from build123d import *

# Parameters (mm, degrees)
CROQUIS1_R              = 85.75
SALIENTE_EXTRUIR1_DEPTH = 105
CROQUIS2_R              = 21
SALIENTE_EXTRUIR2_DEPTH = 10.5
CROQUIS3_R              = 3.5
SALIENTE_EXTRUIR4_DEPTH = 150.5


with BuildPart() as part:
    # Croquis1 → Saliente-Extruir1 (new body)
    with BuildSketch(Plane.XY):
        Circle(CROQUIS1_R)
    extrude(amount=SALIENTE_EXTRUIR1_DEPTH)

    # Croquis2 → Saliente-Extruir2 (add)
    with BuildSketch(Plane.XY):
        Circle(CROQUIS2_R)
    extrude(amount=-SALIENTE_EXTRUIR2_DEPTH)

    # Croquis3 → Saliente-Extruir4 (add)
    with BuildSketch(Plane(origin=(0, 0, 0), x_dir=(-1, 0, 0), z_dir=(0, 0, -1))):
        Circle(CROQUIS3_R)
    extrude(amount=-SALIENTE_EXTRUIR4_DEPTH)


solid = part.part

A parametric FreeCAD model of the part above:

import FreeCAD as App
import Part
import Sketcher
from FreeCAD import Vector
Q = App.Units.Quantity

doc = App.newDocument("Part")
params = doc.addObject("Spreadsheet::Sheet", "Params")
for row, (alias, value) in enumerate([
    ("sketch1_diameter", "171.5 mm"),
    ("pad1_length", "105 mm"),
    ("sketch2_diameter", "42 mm"),
    ("pad2_length", "10.5 mm"),
    ("sketch3_diameter", "7 mm"),
    ("pad3_length", "150.5 mm"),
], start=1):
    params.set(f"A{row}", alias)
    params.set(f"B{row}", "=" + value)
    params.setAlias(f"B{row}", alias)

body = doc.addObject("PartDesign::Body", "Body")

# Sketch on XY plane
sketch1 = body.newObject("Sketcher::SketchObject", "Sketch")
sketch1.AttachmentSupport = (doc.getObject("XY_Plane"), [""])
sketch1.MapMode = "FlatFace"
sketch1.addGeometry(Part.Circle(Vector(0, 0, 0), Vector(0, 0, 1), 86), False)
sketch1.addConstraint([
    Sketcher.Constraint("Coincident", 0, 3, -1, 1),
    Sketcher.Constraint("Diameter", 0, Q("171.5 mm")),
])
sketch1.setExpression("Constraints[1]", "Params.sketch1_diameter")
pad1 = body.newObject("PartDesign::Pad", "Pad")
pad1.Profile = sketch1
pad1.setExpression("Length", "Params.pad1_length")

# Sketch on XY plane
sketch2 = body.newObject("Sketcher::SketchObject", "Sketch001")
sketch2.AttachmentSupport = (doc.getObject("XY_Plane"), [""])
sketch2.MapMode = "FlatFace"
sketch2.addGeometry(Part.Circle(Vector(0, 0, 0), Vector(0, 0, 1), 21), False)
sketch2.addConstraint([
    Sketcher.Constraint("Coincident", 0, 3, -1, 1),
    Sketcher.Constraint("Diameter", 0, Q("42 mm")),
])
sketch2.setExpression("Constraints[1]", "Params.sketch2_diameter")
pad2 = body.newObject("PartDesign::Pad", "Pad001")
pad2.Profile = sketch2
pad2.setExpression("Length", "Params.pad2_length")
pad2.Reversed = True

# Sketch on XY plane
sketch3 = body.newObject("Sketcher::SketchObject", "Sketch002")
sketch3.AttachmentSupport = (doc.getObject("XY_Plane"), [""])
sketch3.MapMode = "FlatFace"
sketch3.addGeometry(Part.Circle(Vector(0, 0, 0), Vector(0, 0, 1), 3.5), False)
sketch3.addConstraint([
    Sketcher.Constraint("Coincident", 0, 3, -1, 1),
    Sketcher.Constraint("Diameter", 0, Q("7 mm")),
])
sketch3.setExpression("Constraints[1]", "Params.sketch3_diameter")
pad3 = body.newObject("PartDesign::Pad", "Pad002")
pad3.Profile = sketch3
pad3.setExpression("Length", "Params.pad3_length")

doc.recompute()
